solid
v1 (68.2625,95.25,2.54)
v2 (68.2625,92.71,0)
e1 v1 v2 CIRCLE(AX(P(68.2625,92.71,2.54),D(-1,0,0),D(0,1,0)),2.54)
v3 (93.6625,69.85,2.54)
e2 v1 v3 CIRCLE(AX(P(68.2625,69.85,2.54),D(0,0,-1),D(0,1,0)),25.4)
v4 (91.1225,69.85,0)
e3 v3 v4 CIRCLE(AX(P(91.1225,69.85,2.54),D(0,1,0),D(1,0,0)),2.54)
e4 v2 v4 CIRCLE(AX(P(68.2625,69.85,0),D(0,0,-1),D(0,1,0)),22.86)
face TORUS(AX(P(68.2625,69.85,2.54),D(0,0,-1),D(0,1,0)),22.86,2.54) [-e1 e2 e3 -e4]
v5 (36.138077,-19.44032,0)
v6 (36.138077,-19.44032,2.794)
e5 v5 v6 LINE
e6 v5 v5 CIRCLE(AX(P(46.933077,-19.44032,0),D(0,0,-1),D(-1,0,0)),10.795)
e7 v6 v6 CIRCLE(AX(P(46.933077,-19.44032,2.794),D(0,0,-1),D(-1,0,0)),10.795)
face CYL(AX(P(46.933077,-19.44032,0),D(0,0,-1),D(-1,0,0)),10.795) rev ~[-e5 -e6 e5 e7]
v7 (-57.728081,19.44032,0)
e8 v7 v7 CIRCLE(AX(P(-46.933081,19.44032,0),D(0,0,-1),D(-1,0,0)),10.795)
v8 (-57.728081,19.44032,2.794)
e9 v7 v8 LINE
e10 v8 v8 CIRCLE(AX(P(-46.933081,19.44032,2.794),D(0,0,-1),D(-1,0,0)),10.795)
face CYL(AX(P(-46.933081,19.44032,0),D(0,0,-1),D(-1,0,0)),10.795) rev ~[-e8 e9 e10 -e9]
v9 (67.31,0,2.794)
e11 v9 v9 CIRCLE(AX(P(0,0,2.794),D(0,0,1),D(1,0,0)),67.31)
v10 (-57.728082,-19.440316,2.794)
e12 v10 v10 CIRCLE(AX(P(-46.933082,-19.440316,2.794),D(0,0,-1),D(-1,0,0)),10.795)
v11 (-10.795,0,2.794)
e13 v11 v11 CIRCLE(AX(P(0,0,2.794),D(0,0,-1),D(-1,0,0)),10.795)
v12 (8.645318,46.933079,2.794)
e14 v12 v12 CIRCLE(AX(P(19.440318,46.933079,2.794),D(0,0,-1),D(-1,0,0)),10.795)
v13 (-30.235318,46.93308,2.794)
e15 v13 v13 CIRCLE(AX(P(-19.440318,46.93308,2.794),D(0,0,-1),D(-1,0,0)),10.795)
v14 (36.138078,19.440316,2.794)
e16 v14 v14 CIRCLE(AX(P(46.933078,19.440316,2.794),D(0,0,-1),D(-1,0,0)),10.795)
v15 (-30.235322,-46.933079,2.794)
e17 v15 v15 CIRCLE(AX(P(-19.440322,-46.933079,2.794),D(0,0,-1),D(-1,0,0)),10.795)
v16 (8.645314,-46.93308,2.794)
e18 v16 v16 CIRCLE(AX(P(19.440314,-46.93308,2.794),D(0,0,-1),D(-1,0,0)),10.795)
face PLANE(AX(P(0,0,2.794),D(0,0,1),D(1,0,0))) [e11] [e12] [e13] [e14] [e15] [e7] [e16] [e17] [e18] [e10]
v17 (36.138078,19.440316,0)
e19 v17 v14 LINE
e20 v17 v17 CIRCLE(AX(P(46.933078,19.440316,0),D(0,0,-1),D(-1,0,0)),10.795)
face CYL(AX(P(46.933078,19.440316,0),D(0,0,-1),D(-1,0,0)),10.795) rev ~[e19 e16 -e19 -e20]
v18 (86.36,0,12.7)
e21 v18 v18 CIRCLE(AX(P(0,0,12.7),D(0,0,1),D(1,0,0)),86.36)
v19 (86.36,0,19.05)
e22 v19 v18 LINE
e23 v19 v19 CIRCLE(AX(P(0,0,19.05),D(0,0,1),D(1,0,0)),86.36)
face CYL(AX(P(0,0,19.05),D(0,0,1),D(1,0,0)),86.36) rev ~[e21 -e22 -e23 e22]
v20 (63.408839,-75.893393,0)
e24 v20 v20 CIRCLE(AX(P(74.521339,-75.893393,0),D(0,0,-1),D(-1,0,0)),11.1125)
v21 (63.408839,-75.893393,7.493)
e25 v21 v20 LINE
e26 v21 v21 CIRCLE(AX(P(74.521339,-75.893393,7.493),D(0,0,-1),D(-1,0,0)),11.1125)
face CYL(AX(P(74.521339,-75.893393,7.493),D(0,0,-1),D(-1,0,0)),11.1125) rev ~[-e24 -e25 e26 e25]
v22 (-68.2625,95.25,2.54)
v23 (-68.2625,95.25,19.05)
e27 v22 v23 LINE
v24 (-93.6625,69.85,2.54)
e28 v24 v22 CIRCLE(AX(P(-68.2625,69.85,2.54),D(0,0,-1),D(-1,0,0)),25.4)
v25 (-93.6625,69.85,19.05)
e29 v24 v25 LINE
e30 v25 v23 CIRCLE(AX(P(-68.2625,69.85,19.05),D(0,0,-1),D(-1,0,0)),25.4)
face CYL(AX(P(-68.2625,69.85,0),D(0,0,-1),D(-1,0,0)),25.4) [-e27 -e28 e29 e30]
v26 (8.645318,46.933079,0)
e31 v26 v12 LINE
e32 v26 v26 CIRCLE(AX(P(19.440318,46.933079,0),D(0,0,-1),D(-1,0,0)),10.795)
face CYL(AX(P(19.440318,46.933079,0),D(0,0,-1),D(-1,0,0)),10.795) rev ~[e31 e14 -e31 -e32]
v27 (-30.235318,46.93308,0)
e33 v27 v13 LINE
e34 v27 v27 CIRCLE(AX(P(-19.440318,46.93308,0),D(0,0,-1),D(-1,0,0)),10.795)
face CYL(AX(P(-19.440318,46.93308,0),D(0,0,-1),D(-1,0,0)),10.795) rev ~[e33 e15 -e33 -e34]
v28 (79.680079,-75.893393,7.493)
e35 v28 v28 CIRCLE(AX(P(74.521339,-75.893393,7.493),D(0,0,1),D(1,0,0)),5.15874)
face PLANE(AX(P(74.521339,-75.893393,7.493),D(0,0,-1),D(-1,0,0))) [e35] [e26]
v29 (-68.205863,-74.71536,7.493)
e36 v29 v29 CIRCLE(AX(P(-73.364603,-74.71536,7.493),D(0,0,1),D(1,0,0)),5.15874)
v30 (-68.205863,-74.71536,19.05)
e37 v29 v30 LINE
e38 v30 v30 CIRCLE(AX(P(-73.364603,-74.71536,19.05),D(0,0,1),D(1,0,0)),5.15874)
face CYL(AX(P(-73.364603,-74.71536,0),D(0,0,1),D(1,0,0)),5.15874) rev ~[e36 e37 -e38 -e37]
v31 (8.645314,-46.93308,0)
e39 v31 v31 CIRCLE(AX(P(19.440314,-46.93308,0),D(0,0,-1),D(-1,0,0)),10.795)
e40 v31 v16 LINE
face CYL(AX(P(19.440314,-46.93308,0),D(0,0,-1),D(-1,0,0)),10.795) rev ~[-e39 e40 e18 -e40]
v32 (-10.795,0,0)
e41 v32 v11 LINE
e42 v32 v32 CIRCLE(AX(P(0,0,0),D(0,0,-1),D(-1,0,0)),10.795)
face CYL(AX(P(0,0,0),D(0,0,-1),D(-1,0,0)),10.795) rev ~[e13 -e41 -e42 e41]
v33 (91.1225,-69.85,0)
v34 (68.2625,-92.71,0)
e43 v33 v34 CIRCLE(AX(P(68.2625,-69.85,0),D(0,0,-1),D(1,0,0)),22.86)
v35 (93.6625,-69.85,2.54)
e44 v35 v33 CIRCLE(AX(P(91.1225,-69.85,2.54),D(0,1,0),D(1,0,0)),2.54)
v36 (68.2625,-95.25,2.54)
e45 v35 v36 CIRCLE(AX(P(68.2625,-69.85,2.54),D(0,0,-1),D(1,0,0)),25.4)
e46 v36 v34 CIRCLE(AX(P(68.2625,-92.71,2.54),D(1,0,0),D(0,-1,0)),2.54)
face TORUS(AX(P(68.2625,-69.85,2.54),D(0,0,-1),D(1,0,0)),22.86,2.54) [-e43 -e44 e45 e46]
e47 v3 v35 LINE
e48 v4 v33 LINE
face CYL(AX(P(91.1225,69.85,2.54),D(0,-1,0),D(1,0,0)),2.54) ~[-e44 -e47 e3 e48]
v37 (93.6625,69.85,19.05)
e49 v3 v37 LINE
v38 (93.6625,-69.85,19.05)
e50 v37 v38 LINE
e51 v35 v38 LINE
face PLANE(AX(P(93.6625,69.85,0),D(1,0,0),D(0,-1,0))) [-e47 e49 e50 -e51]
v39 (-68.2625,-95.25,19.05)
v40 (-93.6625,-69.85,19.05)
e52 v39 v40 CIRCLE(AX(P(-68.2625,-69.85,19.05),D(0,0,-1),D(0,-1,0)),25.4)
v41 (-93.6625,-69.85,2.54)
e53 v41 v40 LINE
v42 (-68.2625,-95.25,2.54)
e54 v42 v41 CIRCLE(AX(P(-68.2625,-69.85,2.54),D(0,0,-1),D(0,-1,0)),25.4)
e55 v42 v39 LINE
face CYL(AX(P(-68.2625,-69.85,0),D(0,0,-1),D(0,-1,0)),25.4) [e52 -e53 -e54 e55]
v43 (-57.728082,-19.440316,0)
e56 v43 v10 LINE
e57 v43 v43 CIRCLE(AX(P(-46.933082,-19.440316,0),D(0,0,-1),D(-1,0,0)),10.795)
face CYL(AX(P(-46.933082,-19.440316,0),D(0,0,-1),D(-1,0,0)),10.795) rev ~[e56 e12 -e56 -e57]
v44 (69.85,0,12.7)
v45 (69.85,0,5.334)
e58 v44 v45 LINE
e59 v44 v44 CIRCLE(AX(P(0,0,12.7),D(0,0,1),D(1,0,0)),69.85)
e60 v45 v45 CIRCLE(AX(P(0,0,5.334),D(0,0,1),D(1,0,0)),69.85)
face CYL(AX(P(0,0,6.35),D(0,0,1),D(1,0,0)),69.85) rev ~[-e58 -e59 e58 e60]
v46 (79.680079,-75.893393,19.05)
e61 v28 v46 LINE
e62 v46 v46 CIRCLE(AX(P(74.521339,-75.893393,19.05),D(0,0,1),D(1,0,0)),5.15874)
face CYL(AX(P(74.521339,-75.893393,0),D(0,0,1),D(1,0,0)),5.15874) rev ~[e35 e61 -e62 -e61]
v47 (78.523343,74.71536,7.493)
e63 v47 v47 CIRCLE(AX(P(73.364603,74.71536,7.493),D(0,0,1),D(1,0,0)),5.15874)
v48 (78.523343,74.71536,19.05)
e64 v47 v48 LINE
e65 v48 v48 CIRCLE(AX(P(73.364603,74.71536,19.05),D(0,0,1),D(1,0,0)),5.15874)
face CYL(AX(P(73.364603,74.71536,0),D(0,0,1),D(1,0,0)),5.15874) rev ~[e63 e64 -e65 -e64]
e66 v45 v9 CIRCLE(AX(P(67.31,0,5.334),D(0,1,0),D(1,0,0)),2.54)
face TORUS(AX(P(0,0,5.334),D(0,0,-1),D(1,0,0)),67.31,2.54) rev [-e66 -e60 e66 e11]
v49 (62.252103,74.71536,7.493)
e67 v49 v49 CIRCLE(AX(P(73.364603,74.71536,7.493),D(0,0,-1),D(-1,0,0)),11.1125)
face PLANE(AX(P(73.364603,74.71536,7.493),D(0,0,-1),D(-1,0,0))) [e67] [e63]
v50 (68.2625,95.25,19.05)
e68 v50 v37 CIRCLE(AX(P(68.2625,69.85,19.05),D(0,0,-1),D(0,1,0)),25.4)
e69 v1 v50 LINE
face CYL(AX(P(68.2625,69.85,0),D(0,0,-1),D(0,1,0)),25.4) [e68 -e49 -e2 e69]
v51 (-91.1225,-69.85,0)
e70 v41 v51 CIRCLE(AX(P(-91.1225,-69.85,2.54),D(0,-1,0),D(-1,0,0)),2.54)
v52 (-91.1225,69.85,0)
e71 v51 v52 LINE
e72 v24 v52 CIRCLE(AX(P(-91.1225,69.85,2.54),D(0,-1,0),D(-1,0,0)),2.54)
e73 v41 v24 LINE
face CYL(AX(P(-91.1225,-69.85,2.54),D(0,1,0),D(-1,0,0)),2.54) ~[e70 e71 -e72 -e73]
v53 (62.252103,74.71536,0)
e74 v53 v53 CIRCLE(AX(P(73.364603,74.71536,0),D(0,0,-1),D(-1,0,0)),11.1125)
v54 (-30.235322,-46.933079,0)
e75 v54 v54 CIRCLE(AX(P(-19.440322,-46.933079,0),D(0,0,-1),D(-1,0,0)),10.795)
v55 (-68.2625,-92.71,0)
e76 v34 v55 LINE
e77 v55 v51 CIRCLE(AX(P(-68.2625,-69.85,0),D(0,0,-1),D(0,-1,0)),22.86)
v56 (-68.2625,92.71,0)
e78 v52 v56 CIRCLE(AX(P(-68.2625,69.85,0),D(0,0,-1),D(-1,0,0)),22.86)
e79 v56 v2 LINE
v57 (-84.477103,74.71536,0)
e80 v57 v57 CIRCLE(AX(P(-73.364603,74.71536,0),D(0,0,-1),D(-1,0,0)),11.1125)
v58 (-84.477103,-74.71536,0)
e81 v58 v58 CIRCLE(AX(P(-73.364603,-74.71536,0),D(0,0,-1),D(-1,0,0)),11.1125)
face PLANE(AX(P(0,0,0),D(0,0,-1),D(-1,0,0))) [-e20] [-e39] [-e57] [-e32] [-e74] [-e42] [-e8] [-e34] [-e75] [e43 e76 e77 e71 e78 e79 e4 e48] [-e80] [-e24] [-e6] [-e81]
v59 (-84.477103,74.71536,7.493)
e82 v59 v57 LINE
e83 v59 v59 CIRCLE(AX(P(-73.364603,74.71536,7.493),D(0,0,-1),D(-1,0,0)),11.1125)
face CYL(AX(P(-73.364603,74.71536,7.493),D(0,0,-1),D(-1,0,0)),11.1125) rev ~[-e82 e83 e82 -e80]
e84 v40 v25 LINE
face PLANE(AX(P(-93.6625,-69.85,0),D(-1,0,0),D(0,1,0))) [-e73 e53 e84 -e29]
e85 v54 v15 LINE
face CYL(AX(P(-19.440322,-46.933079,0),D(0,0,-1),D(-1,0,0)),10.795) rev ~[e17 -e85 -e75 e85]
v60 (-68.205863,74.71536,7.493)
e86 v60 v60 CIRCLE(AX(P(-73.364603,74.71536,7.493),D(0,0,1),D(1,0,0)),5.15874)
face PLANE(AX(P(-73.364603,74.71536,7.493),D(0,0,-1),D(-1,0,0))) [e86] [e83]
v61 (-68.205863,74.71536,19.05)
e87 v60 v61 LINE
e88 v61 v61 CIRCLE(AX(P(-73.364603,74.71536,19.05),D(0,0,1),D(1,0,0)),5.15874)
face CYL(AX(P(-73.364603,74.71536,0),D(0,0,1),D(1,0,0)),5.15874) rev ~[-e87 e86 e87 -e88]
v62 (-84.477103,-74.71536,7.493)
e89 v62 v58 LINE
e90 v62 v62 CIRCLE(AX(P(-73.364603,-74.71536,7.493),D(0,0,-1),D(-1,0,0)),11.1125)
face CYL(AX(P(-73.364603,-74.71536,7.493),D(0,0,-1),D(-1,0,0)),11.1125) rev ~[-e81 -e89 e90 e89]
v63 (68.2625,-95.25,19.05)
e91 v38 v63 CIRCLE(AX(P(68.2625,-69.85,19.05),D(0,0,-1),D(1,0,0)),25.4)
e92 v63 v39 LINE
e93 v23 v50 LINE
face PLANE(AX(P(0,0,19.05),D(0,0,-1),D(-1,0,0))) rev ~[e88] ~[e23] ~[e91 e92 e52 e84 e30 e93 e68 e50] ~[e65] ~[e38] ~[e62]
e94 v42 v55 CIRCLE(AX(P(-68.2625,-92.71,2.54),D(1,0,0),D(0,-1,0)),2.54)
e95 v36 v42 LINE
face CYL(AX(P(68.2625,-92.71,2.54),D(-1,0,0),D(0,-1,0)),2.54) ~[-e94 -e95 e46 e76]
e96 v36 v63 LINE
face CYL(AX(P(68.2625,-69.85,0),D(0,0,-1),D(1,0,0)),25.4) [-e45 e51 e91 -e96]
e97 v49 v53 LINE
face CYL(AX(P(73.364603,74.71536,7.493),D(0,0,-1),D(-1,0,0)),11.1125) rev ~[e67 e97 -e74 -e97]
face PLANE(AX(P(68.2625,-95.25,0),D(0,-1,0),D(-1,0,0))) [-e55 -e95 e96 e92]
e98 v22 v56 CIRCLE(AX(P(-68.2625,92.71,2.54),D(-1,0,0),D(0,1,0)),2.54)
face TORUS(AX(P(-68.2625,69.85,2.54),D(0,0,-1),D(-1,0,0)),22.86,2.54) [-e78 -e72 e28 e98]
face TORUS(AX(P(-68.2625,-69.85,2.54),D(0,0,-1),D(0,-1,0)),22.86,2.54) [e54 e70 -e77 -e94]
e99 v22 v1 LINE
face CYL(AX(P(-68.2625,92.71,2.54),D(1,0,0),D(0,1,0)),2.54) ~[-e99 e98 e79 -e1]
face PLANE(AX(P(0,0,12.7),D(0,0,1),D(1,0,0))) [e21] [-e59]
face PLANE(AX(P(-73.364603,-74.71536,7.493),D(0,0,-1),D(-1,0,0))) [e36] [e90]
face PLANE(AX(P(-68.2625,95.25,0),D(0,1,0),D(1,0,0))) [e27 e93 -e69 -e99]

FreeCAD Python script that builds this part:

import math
import FreeCAD as App
import Part
import Sketcher
from FreeCAD import Vector
Q = App.Units.Quantity


def edges_at(feature, points):
    """Names of the edges that pass closest to the given points."""
    edges = feature.Shape.Edges
    near = lambda p: min(range(len(edges)), key=lambda i: edges[i].distToShape(Part.Vertex(*p))[0])
    return sorted({f"Edge{near(p) + 1}" for p in points})

doc = App.newDocument("Part")
body = doc.addObject("PartDesign::Body", "Body")

# Sketch on XY plane
sketch1 = body.newObject("Sketcher::SketchObject", "Sketch")
sketch1.AttachmentSupport = (doc.getObject("XY_Plane"), [""])
sketch1.MapMode = "FlatFace"
sketch1.addGeometry([
    Part.LineSegment(Vector(94, -70, 0), Vector(94, 70, 0)),  # 0
    Part.ArcOfCircle(Part.Circle(Vector(68, 70, 0), Vector(0, 0, 1), 25), math.radians(0), math.radians(90)),  # 1
    Part.LineSegment(Vector(68, 95, 0), Vector(-68, 95, 0)),  # 2
    Part.ArcOfCircle(Part.Circle(Vector(-68, 70, 0), Vector(0, 0, 1), 25), math.radians(90), math.radians(180)),  # 3
    Part.LineSegment(Vector(-94, 70, 0), Vector(-94, -70, 0)),  # 4
    Part.ArcOfCircle(Part.Circle(Vector(-68, -70, 0), Vector(0, 0, 1), 25), math.radians(180), math.radians(270)),  # 5
    Part.LineSegment(Vector(-68, -95, 0), Vector(68, -95, 0)),  # 6
    Part.ArcOfCircle(Part.Circle(Vector(68, -70, 0), Vector(0, 0, 1), 25), math.radians(-90), math.radians(0)),  # 7
], False)
sketch1.addConstraint([
    Sketcher.Constraint("Tangent", 0, 2, 1, 1),
    Sketcher.Constraint("Tangent", 1, 2, 2, 1),
    Sketcher.Constraint("Tangent", 2, 2, 3, 1),
    Sketcher.Constraint("Tangent", 3, 2, 4, 1),
    Sketcher.Constraint("Tangent", 4, 2, 5, 1),
    Sketcher.Constraint("Tangent", 5, 2, 6, 1),
    Sketcher.Constraint("Tangent", 6, 2, 7, 1),
    Sketcher.Constraint("Tangent", 7, 2, 0, 1),
    Sketcher.Constraint("Vertical", 0),
    Sketcher.Constraint("Horizontal", 2),
    Sketcher.Constraint("Vertical", 4),
    Sketcher.Constraint("Horizontal", 6),
    Sketcher.Constraint("Equal", 1, 3),
    Sketcher.Constraint("Equal", 3, 5),
    Sketcher.Constraint("Equal", 5, 7),
    Sketcher.Constraint("Symmetric", 1, 3, 5, 3, -1, 1),
    Sketcher.Constraint("Radius", 1, Q("1 in")),
    Sketcher.Constraint("DistanceY", 0, 1, 0, 2, Q("5.5 in")),
    Sketcher.Constraint("DistanceX", 2, 2, 2, 1, Q("5.375 in")),
])
pad1 = body.newObject("PartDesign::Pad", "Pad")
pad1.Profile = sketch1
pad1.Length = Q("0.75 in")

# Sketch on XY plane
sketch2 = body.newObject("Sketcher::SketchObject", "Sketch001")
sketch2.AttachmentSupport = (doc.getObject("XY_Plane"), [""])
sketch2.MapMode = "FlatFace"
sketch2.AttachmentOffset = App.Placement(Vector(0, 0, 0.75 * 25.4), App.Rotation())
sketch2.addGeometry(Part.Circle(Vector(0, 0, 0), Vector(0, 0, 1), 86), False)
sketch2.addConstraint([
    Sketcher.Constraint("Coincident", 0, 3, -1, 1),
    Sketcher.Constraint("Diameter", 0, Q("6.8 in")),
])
pocket1 = body.newObject("PartDesign::Pocket", "Pocket")
pocket1.Profile = sketch2
pocket1.Length = Q("0.25 in")

# Sketch on XY plane
sketch3 = body.newObject("Sketcher::SketchObject", "Sketch002")
sketch3.AttachmentSupport = (doc.getObject("XY_Plane"), [""])
sketch3.MapMode = "FlatFace"
sketch3.AttachmentOffset = App.Placement(Vector(0, 0, 0.5 * 25.4), App.Rotation())
sketch3.addGeometry(Part.Circle(Vector(0, 0, 0), Vector(0, 0, 1), 70), False)
sketch3.addConstraint([
    Sketcher.Constraint("Coincident", 0, 3, -1, 1),
    Sketcher.Constraint("Diameter", 0, Q("5.5 in")),
])
pocket2 = body.newObject("PartDesign::Pocket", "Pocket001")
pocket2.Profile = sketch3
pocket2.Length = Q("0.25 in")

# Sketch on XY plane
sketch4 = body.newObject("Sketcher::SketchObject", "Sketch003")
sketch4.AttachmentSupport = (doc.getObject("XY_Plane"), [""])
sketch4.MapMode = "FlatFace"
sketch4.addGeometry([
    Part.Circle(Vector(75, -76, 0), Vector(0, 0, 1), 5),
    Part.Circle(Vector(73, 75, 0), Vector(0, 0, 1), 5),
    Part.Circle(Vector(-73, 75, 0), Vector(0, 0, 1), 5),
    Part.Circle(Vector(-73, -75, 0), Vector(0, 0, 1), 5),
], False)
sketch4.addConstraint([
    Sketcher.Constraint("Equal", 0, 1),
    Sketcher.Constraint("Equal", 1, 2),
    Sketcher.Constraint("Equal", 2, 3),
    Sketcher.Constraint("Symmetric", 1, 3, 3, 3, -1, 1),
    Sketcher.Constraint("Symmetric", 1, 3, 2, 3, -2),
    Sketcher.Constraint("Diameter", 0, Q("0.4062 in")),
    Sketcher.Constraint("DistanceX", -1, 1, 0, 3, Q("74.521339 mm")),
    Sketcher.Constraint("DistanceY", -1, 1, 1, 3, Q("74.71536 mm")),
    Sketcher.Constraint("DistanceY", 0, 3, -1, 1, Q("75.893393 mm")),
    Sketcher.Constraint("DistanceX", -1, 1, 1, 3, Q("73.364603 mm")),
])
doc.recompute()
hole = body.newObject("PartDesign::Hole", "Hole")
hole.Profile = sketch4
hole.ThreadType = "None"
hole.Diameter = Q("0.4062 in")
hole.DepthType = "ThroughAll"
hole.HoleCutType = "Counterbore"
hole.HoleCutDiameter = Q("0.875 in")
hole.HoleCutDepth = Q("0.295 in")
hole.Reversed = True

# Sketch on XY plane
sketch5 = body.newObject("Sketcher::SketchObject", "Sketch004")
sketch5.AttachmentSupport = (doc.getObject("XY_Plane"), [""])
sketch5.MapMode = "FlatFace"
sketch5.addGeometry([
    Part.Circle(Vector(0, 0, 0), Vector(0, 0, 1), 11),  # 0
    Part.Circle(Vector(-19, 47, 0), Vector(0, 0, 1), 11),  # 1
    Part.Circle(Vector(-47, 19, 0), Vector(0, 0, 1), 11),  # 2
    Part.Circle(Vector(-47, -19, 0), Vector(0, 0, 1), 11),  # 3
    Part.Circle(Vector(-19, -47, 0), Vector(0, 0, 1), 11),  # 4
    Part.Circle(Vector(19, -47, 0), Vector(0, 0, 1), 11),  # 5
    Part.Circle(Vector(47, -19, 0), Vector(0, 0, 1), 11),  # 6
    Part.Circle(Vector(47, 19, 0), Vector(0, 0, 1), 11),  # 7
    Part.Circle(Vector(19, 47, 0), Vector(0, 0, 1), 11),  # 8
], False)
sketch5.addConstraint([
    Sketcher.Constraint("Coincident", 0, 3, -1, 1),
    Sketcher.Constraint("Equal", 0, 1),
    Sketcher.Constraint("Equal", 1, 2),
    Sketcher.Constraint("Equal", 2, 3),
    Sketcher.Constraint("Equal", 3, 4),
    Sketcher.Constraint("Equal", 4, 5),
    Sketcher.Constraint("Equal", 5, 6),
    Sketcher.Constraint("Equal", 6, 7),
    Sketcher.Constraint("Equal", 7, 8),
    Sketcher.Constraint("Symmetric", 1, 3, 5, 3, -1, 1),
    Sketcher.Constraint("Symmetric", 2, 3, 6, 3, -1, 1),
    Sketcher.Constraint("Symmetric", 3, 3, 7, 3, -1, 1),
    Sketcher.Constraint("Symmetric", 4, 3, 8, 3, -1, 1),
    Sketcher.Constraint("Symmetric", 4, 3, 5, 3, -2),
    Sketcher.Constraint("Symmetric", 3, 3, 6, 3, -2),
    Sketcher.Constraint("Diameter", 0, Q("0.85 in")),
    Sketcher.Constraint("DistanceY", 4, 3, 2, 3, Q("66.373399 mm")),
    Sketcher.Constraint("DistanceX", 4, 3, 6, 3, Q("66.373399 mm")),
    Sketcher.Constraint("DistanceX", 1, 3, -1, 1, Q("19.440318 mm")),
    Sketcher.Constraint("DistanceY", -1, 1, 1, 3, Q("46.93308 mm")),
])
pocket3 = body.newObject("PartDesign::Pocket", "Pocket002")
pocket3.Profile = sketch5
pocket3.Length = Q("0.25 in")
pocket3.Reversed = True

# Sketch on XY plane
sketch6 = body.newObject("Sketcher::SketchObject", "Sketch005")
sketch6.AttachmentSupport = (doc.getObject("XY_Plane"), [""])
sketch6.MapMode = "FlatFace"
sketch6.AttachmentOffset = App.Placement(Vector(0, 0, 0.25 * 25.4), App.Rotation())
sketch6.addGeometry(Part.Circle(Vector(0, 0, 0), Vector(0, 0, 1), 70), False)
sketch6.addConstraint([
    Sketcher.Constraint("Coincident", 0, 3, -1, 1),
    Sketcher.Constraint("Diameter", 0, Q("5.5 in")),
])
pocket4 = body.newObject("PartDesign::Pocket", "Pocket003")
pocket4.Profile = sketch6
pocket4.Length = Q("0.14 in")
doc.recompute()

fillet = body.newObject("PartDesign::Fillet", "Fillet")
fillet.Base = (pocket4, edges_at(pocket4, [
    (93.662, 0, 0),
    (86.223, -87.811, 0),
    (0, -95.25, 0),
    (-86.223, -87.811, 0),
    (-69.85, 0, 2.794),
    (-93.662, 0, 0),
    (-86.223, 87.811, 0),
    (0, 95.25, 0),
    (86.223, 87.811, 0),
]))
fillet.Radius = Q("0.1 in")

doc.recompute()
